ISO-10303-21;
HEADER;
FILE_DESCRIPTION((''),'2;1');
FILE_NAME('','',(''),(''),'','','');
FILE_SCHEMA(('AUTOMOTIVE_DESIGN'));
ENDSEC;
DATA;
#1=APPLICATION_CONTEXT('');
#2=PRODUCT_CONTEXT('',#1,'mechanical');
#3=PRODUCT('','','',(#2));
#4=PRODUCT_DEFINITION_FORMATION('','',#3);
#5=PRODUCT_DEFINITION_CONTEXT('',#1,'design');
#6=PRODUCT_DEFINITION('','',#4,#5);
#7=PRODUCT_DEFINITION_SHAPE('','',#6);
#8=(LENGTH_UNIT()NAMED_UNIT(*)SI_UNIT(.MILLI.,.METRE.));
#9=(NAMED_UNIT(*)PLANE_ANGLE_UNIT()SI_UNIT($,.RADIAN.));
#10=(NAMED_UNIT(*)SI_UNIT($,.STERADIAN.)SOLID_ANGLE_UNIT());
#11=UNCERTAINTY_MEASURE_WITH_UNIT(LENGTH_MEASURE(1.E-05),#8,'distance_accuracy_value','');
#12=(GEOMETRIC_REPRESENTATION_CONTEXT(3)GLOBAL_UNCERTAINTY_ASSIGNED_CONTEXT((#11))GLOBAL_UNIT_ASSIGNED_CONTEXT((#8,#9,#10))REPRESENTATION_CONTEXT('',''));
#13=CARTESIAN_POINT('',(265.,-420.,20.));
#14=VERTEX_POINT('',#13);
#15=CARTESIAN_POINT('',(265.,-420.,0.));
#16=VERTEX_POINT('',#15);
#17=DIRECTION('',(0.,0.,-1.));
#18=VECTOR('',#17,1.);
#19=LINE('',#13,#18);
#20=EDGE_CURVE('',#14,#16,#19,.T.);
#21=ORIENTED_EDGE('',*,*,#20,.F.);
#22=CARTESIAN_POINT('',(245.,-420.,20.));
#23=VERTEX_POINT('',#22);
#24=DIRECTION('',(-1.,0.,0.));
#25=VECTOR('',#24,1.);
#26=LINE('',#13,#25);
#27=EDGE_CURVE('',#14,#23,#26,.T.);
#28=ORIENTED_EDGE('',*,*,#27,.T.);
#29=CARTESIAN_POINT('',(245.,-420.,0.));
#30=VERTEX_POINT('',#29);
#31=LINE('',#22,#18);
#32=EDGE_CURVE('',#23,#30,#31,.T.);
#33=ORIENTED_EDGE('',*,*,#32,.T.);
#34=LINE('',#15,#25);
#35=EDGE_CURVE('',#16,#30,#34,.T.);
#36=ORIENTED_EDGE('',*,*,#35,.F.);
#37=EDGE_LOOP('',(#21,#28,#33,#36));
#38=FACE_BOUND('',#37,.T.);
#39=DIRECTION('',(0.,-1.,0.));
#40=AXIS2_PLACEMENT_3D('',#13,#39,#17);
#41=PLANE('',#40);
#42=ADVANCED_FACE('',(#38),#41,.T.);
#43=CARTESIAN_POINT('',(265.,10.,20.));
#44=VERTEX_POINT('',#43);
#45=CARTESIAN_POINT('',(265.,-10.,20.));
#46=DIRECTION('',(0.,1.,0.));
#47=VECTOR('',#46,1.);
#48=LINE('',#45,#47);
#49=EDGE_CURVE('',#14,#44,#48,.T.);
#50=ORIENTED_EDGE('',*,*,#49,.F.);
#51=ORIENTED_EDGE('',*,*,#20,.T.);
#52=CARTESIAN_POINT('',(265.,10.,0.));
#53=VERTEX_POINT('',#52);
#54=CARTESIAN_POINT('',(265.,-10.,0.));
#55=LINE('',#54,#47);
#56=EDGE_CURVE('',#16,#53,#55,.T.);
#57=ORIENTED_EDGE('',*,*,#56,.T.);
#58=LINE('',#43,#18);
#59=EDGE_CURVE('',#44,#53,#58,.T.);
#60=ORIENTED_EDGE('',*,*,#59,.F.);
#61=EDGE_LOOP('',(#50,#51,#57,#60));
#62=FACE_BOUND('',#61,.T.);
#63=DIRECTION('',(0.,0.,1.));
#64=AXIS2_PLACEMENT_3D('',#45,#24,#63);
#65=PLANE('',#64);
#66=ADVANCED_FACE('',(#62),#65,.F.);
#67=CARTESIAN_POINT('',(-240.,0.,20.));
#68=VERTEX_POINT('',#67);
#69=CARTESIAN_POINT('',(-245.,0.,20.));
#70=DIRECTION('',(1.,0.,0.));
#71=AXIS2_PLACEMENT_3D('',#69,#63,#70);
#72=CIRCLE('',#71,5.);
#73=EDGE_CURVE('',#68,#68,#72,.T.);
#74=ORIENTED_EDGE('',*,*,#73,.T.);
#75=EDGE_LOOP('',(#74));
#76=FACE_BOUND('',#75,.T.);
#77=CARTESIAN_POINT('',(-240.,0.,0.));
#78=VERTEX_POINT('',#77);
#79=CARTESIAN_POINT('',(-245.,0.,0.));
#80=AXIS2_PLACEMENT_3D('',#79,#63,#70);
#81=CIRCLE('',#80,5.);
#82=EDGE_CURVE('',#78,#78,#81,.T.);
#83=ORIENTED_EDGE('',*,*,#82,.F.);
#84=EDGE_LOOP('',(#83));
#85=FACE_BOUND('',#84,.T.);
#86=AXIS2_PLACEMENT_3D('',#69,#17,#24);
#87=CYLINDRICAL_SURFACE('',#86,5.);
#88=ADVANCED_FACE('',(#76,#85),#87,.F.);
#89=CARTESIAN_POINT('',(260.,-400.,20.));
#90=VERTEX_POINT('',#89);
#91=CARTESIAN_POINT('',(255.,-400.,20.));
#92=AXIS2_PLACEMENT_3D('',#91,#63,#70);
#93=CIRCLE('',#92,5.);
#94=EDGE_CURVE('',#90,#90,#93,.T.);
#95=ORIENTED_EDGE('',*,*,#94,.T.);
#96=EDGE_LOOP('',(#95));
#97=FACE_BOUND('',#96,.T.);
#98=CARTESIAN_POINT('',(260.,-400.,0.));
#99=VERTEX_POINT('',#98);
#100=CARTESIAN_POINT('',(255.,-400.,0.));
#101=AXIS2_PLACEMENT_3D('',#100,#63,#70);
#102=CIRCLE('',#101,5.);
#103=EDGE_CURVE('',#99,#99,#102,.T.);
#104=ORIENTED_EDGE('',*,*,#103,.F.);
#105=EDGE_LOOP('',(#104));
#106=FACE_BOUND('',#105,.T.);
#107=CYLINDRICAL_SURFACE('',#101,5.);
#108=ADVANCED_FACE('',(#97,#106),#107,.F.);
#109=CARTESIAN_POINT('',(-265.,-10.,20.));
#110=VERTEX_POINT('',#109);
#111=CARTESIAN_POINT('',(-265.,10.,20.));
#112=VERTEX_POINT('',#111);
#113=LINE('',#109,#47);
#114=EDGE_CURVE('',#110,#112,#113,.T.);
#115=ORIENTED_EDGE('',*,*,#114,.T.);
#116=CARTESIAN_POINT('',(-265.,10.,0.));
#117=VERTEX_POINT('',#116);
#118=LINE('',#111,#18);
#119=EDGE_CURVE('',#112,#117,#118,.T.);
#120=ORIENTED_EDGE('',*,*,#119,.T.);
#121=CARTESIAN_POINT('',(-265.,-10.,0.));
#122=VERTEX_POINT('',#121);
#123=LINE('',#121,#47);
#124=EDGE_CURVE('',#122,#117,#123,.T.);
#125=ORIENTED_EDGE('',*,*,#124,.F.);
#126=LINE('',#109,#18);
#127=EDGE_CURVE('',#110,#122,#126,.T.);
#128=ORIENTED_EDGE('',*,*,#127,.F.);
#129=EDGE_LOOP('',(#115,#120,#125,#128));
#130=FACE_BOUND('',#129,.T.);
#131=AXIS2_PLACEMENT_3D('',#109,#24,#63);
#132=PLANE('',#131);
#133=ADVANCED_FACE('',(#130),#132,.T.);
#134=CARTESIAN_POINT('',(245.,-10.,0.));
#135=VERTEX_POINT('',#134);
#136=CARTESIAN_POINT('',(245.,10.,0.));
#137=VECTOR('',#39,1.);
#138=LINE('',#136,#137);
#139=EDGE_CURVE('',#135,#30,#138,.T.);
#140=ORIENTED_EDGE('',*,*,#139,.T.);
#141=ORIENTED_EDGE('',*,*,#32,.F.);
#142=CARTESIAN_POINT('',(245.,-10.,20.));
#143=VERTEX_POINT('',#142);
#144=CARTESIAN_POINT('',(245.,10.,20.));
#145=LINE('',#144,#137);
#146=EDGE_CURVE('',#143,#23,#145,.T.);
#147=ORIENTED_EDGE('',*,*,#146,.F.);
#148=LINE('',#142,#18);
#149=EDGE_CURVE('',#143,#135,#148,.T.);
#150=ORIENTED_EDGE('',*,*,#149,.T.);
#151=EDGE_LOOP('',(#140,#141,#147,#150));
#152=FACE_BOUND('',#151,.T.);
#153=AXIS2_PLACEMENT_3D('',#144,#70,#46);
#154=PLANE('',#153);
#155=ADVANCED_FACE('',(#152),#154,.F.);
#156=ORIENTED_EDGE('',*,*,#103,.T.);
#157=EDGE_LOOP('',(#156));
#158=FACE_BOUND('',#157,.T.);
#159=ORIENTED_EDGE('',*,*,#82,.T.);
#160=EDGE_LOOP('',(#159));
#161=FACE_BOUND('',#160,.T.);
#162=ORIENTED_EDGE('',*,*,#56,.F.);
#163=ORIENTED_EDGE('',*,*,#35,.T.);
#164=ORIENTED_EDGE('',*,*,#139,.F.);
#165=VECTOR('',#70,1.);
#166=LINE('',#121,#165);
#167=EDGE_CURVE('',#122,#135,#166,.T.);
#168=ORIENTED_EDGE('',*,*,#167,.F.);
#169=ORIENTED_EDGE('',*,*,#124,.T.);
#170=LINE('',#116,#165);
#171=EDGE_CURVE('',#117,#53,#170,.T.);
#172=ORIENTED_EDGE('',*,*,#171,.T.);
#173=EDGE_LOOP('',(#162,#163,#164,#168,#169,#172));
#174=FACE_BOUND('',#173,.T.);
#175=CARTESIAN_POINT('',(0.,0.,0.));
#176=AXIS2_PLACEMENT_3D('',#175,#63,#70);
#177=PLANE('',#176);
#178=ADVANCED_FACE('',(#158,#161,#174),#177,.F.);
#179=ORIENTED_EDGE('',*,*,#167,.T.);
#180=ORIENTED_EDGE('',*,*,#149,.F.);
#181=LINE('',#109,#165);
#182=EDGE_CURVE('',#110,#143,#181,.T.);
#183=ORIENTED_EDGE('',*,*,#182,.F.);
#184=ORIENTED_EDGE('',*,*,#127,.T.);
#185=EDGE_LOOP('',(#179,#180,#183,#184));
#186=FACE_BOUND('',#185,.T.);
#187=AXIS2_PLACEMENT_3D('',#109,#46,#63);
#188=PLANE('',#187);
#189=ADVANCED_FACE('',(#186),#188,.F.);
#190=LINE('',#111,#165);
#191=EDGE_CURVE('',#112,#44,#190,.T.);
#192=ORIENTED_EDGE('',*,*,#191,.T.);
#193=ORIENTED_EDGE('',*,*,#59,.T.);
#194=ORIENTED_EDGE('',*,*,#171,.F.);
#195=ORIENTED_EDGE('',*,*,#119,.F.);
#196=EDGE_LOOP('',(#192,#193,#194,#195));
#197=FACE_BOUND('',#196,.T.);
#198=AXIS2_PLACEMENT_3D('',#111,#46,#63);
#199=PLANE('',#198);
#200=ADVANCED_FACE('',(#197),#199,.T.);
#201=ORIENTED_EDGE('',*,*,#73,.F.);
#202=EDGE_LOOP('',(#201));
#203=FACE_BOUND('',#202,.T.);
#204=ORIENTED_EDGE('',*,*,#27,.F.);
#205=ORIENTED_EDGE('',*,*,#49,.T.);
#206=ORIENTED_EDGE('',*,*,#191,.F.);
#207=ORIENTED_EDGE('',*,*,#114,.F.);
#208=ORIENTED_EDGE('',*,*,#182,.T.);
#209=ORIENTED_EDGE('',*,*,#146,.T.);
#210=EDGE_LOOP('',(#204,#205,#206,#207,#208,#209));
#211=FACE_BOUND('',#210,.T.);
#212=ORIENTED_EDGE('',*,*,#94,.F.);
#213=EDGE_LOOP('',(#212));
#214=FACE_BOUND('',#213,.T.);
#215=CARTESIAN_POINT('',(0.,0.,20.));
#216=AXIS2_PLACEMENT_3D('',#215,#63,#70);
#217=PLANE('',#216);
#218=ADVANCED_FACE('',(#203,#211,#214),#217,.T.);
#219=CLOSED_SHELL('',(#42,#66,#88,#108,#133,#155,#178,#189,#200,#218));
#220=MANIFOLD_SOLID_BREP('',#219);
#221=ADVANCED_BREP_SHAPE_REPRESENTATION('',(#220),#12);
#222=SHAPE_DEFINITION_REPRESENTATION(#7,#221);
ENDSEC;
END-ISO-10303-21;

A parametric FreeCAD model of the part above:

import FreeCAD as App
import Part
import Sketcher
Q = App.Units.Quantity


def add_polygon(sketch, points):
    """Adds a closed chain of lines whose ends are joined by coincident constraints."""
    first, n = sketch.GeometryCount, len(points)
    for a, b in zip(points, points[1:] + points[:1]):
        sketch.addGeometry(Part.LineSegment(App.Vector(*a, 0), App.Vector(*b, 0)), False)
    for i in range(n):
        sketch.addConstraint(Sketcher.Constraint("Coincident", first + i, 2, first + (i + 1) % n, 1))

doc = App.newDocument("Part")
body = doc.addObject("PartDesign::Body", "Body")

sketch1 = body.newObject("Sketcher::SketchObject", "Sketch")
sketch1.AttachmentSupport = (doc.getObject("XY_Plane"), [""])
sketch1.MapMode = "FlatFace"
add_polygon(sketch1, [(-265, 10), (-265, -10), (245, -10), (245, -420), (265, -420), (265, 10)])
sketch1.addGeometry(Part.Circle(App.Vector(-245, 0, 0), App.Vector(0, 0, 1), 5), False)
sketch1.addConstraint([
    Sketcher.Constraint("Vertical", 0),
    Sketcher.Constraint("Horizontal", 1),
    Sketcher.Constraint("Vertical", 2),
    Sketcher.Constraint("Horizontal", 3),
    Sketcher.Constraint("Vertical", 4),
    Sketcher.Constraint("Horizontal", 5),
    Sketcher.Constraint("Symmetric", 0, 2, 4, 2, -1, 1),
    Sketcher.Constraint("PointOnObject", 6, 3, -1),
    Sketcher.Constraint("Equal", 3, 0),
    Sketcher.Constraint("Diameter", 6, Q("10 mm")),
    Sketcher.Constraint("DistanceX", 1, 1, 1, 2, Q("510 mm")),
    Sketcher.Constraint("DistanceX", 3, 1, 3, 2, Q("20 mm")),
    Sketcher.Constraint("DistanceY", 2, 2, 2, 1, Q("410 mm")),
    Sketcher.Constraint("DistanceX", 6, 3, -1, 1, Q("245 mm")),
])
pad1 = body.newObject("PartDesign::Pad", "Pad")
pad1.Profile = sketch1
pad1.Length = 20

sketch2 = body.newObject("Sketcher::SketchObject", "Sketch001")
sketch2.AttachmentSupport = (doc.getObject("XY_Plane"), [""])
sketch2.MapMode = "FlatFace"
sketch2.AttachmentOffset = App.Placement(App.Vector(0, 0, 20), App.Rotation())
sketch2.addGeometry(Part.Circle(App.Vector(255, -400, 0), App.Vector(0, 0, 1), 5), False)
sketch2.addConstraint([
    Sketcher.Constraint("Diameter", 0, Q("10 mm")),
    Sketcher.Constraint("DistanceX", -1, 1, 0, 3, Q("255 mm")),
    Sketcher.Constraint("DistanceY", 0, 3, -1, 1, Q("400 mm")),
])
pocket1 = body.newObject("PartDesign::Pocket", "Pocket")
pocket1.Profile = sketch2
pocket1.Length = 20

doc.recompute()
